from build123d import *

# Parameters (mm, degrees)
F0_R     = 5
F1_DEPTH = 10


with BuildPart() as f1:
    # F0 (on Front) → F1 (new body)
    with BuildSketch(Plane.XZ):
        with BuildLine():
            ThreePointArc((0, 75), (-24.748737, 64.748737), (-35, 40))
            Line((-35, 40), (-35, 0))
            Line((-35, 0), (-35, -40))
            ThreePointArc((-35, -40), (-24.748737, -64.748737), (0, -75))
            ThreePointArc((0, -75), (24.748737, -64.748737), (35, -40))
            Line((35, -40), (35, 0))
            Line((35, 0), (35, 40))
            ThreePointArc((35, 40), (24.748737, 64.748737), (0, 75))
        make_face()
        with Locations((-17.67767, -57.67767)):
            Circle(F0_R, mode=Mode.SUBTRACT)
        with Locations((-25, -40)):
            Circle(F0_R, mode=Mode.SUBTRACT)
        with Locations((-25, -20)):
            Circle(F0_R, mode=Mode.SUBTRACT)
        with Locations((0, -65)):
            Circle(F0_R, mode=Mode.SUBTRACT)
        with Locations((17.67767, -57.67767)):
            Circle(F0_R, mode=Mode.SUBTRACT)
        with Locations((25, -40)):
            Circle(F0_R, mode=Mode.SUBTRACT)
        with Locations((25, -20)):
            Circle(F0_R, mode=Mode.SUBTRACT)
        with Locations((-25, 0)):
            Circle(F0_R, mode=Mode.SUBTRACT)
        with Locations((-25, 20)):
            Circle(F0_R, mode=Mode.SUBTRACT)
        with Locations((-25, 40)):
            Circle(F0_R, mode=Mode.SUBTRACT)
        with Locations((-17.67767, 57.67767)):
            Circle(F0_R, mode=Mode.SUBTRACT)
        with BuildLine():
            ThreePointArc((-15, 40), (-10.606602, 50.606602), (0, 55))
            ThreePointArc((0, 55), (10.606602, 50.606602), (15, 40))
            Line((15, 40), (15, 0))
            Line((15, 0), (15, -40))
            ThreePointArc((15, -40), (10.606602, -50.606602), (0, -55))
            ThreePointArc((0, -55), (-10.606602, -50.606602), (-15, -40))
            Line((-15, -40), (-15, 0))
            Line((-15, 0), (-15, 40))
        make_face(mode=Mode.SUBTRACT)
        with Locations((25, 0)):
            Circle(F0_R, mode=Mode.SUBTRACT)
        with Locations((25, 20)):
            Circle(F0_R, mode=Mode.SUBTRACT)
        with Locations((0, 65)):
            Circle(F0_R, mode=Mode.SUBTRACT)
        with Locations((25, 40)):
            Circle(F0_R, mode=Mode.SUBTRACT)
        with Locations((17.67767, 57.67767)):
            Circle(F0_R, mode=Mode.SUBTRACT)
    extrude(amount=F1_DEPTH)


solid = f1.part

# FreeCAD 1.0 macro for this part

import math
import FreeCAD as App
import Part
import Sketcher

V = App.Vector
Q = App.Units.Quantity

doc = App.newDocument("Part")
body = doc.addObject("PartDesign::Body", "Body")

sketch1 = body.newObject("Sketcher::SketchObject", "Sketch")
sketch1.AttachmentSupport = (doc.getObject("XZ_Plane"), [""])
sketch1.MapMode = "FlatFace"
sketch1.addGeometry([
    Part.ArcOfCircle(Part.Circle(V(0, 40, 0), V(0, 0, 1), 35), math.radians(90), math.radians(180)),
    Part.LineSegment(V(-35, 40, 0), V(-35, -40, 0)),
    Part.ArcOfCircle(Part.Circle(V(0, -40, 0), V(0, 0, 1), 35), math.radians(-180), math.radians(-90)),
    Part.ArcOfCircle(Part.Circle(V(0, -40, 0), V(0, 0, 1), 35), math.radians(-90), math.radians(0)),
    Part.LineSegment(V(35, -40, 0), V(35, 40, 0)),
    Part.ArcOfCircle(Part.Circle(V(0, 40, 0), V(0, 0, 1), 35), math.radians(0), math.radians(90)),
    Part.Circle(V(-18, -58, 0), V(0, 0, 1), 5),
    Part.Circle(V(-25, -40, 0), V(0, 0, 1), 5),
    Part.Circle(V(-25, -20, 0), V(0, 0, 1), 5),
    Part.Circle(V(0, -65, 0), V(0, 0, 1), 5),
    Part.Circle(V(18, -58, 0), V(0, 0, 1), 5),
    Part.Circle(V(25, -40, 0), V(0, 0, 1), 5),
    Part.Circle(V(25, -20, 0), V(0, 0, 1), 5),
    Part.Circle(V(-25, 0, 0), V(0, 0, 1), 5),
    Part.Circle(V(-25, 20, 0), V(0, 0, 1), 5),
    Part.Circle(V(-25, 40, 0), V(0, 0, 1), 5),
    Part.Circle(V(-18, 58, 0), V(0, 0, 1), 5),
    Part.LineSegment(V(-15, -40, 0), V(-15, 40, 0)),
    Part.ArcOfCircle(Part.Circle(V(0, 40, 0), V(0, 0, 1), 15), math.radians(90), math.radians(180)),
    Part.ArcOfCircle(Part.Circle(V(0, 40, 0), V(0, 0, 1), 15), math.radians(0), math.radians(90)),
    Part.LineSegment(V(15, 40, 0), V(15, -40, 0)),
    Part.ArcOfCircle(Part.Circle(V(0, -40, 0), V(0, 0, 1), 15), math.radians(-90), math.radians(0)),
    Part.ArcOfCircle(Part.Circle(V(0, -40, 0), V(0, 0, 1), 15), math.radians(180), math.radians(270)),
    Part.Circle(V(25, 0, 0), V(0, 0, 1), 5),
    Part.Circle(V(25, 20, 0), V(0, 0, 1), 5),
    Part.Circle(V(0, 65, 0), V(0, 0, 1), 5),
    Part.Circle(V(25, 40, 0), V(0, 0, 1), 5),
    Part.Circle(V(18, 58, 0), V(0, 0, 1), 5),
], False)
sketch1.addConstraint([
    Sketcher.Constraint("Tangent", 0, 2, 1, 1),
    Sketcher.Constraint("Tangent", 1, 2, 2, 1),
    Sketcher.Constraint("Tangent", 2, 2, 3, 1),
    Sketcher.Constraint("Tangent", 3, 2, 4, 1),
    Sketcher.Constraint("Tangent", 4, 2, 5, 1),
    Sketcher.Constraint("Tangent", 5, 2, 0, 1),
    Sketcher.Constraint("Tangent", 17, 2, 18, 2),
    Sketcher.Constraint("Tangent", 18, 1, 19, 2),
    Sketcher.Constraint("Tangent", 19, 1, 20, 1),
    Sketcher.Constraint("Tangent", 20, 2, 21, 2),
    Sketcher.Constraint("Tangent", 21, 1, 22, 2),
    Sketcher.Constraint("Tangent", 22, 1, 17, 1),
    Sketcher.Constraint("Vertical", 1),
    Sketcher.Constraint("Vertical", 4),
    Sketcher.Constraint("Vertical", 17),
    Sketcher.Constraint("Vertical", 20),
    Sketcher.Constraint("Coincident", 18, 3, 0, 3),
    Sketcher.Constraint("Coincident", 21, 3, 2, 3),
    Sketcher.Constraint("Equal", 0, 2),
    Sketcher.Constraint("Equal", 2, 3),
    Sketcher.Constraint("Equal", 6, 7),
    Sketcher.Constraint("Equal", 7, 8),
    Sketcher.Constraint("Equal", 8, 9),
    Sketcher.Constraint("Equal", 9, 10),
    Sketcher.Constraint("Equal", 10, 11),
    Sketcher.Constraint("Equal", 11, 12),
    Sketcher.Constraint("Equal", 12, 13),
    Sketcher.Constraint("Equal", 13, 14),
    Sketcher.Constraint("Equal", 14, 15),
    Sketcher.Constraint("Equal", 15, 16),
    Sketcher.Constraint("Equal", 18, 19),
    Sketcher.Constraint("Equal", 16, 23),
    Sketcher.Constraint("Equal", 23, 24),
    Sketcher.Constraint("Equal", 24, 25),
    Sketcher.Constraint("Equal", 25, 26),
    Sketcher.Constraint("Equal", 26, 27),
    Sketcher.Constraint("Symmetric", 0, 3, 2, 3, -1, 1),
    Sketcher.Constraint("Symmetric", 12, 3, 14, 3, -1, 1),
    Sketcher.Constraint("Symmetric", 11, 3, 15, 3, -1, 1),
    Sketcher.Constraint("Symmetric", 10, 3, 16, 3, -1, 1),
    Sketcher.Constraint("Symmetric", 13, 3, 23, 3, -1, 1),
    Sketcher.Constraint("Symmetric", 8, 3, 24, 3, -1, 1),
    Sketcher.Constraint("Symmetric", 9, 3, 25, 3, -1, 1),
    Sketcher.Constraint("Symmetric", 7, 3, 26, 3, -1, 1),
    Sketcher.Constraint("Symmetric", 6, 3, 27, 3, -1, 1),
    Sketcher.Constraint("Symmetric", 6, 3, 10, 3, -2),
    Sketcher.Constraint("Symmetric", 7, 3, 11, 3, -2),
    Sketcher.Constraint("Symmetric", 8, 3, 12, 3, -2),
    Sketcher.Constraint("PointOnObject", 9, 3, -2),
    Sketcher.Constraint("PointOnObject", 13, 3, -1),
    Sketcher.Constraint("PointOnObject", 2, 2, -2),
    Sketcher.Constraint("PointOnObject", 5, 2, -2),
    Sketcher.Constraint("PointOnObject", 18, 1, -2),
    Sketcher.Constraint("PointOnObject", 21, 1, -2),
    Sketcher.Constraint("Horizontal", 3, 3, 7, 3),
    Sketcher.Constraint("Vertical", 7, 3, 8, 3),
    Sketcher.Constraint("Vertical", 8, 3, 13, 3),
    Sketcher.Constraint("Diameter", 6, Q("10 mm")),
    Sketcher.Constraint("Radius", 0, Q("35.000001 mm")),
    Sketcher.Constraint("Radius", 18, Q("14.999999 mm")),
    Sketcher.Constraint("DistanceY", 1, 2, 1, 1, Q("80 mm")),
    Sketcher.Constraint("DistanceX", 7, 3, -1, 1, Q("25 mm")),
    Sketcher.Constraint("DistanceY", 8, 3, -1, 1, Q("20 mm")),
    Sketcher.Constraint("DistanceY", 9, 3, -1, 1, Q("65 mm")),
    Sketcher.Constraint("DistanceX", 6, 3, -1, 1, Q("17.67767 mm")),
    Sketcher.Constraint("DistanceY", 6, 3, -1, 1, Q("57.67767 mm")),
])
pad1 = body.newObject("PartDesign::Pad", "Pad")
pad1.Profile = sketch1
pad1.Length = 10

doc.recompute()
